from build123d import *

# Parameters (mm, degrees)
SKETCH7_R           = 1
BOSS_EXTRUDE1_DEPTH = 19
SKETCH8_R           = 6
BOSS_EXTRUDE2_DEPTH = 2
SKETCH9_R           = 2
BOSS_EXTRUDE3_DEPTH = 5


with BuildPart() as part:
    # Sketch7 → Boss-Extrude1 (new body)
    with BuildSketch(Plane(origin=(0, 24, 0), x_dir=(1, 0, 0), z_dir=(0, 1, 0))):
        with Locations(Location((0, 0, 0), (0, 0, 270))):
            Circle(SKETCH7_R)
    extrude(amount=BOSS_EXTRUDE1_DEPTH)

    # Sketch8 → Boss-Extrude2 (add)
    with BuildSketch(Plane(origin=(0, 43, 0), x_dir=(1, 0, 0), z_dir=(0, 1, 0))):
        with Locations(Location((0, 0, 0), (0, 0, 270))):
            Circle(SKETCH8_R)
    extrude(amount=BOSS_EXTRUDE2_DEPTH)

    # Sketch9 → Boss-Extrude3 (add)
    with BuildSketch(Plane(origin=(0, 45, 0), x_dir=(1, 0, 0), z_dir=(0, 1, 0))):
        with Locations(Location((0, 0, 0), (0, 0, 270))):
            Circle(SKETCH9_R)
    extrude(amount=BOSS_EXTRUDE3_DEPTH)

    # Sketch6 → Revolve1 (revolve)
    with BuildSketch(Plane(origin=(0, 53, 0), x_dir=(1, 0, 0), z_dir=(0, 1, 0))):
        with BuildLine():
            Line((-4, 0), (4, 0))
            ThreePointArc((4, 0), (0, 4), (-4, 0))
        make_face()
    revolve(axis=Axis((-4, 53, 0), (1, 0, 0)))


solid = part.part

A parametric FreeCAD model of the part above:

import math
import FreeCAD as App
import Part
import Sketcher
Q = App.Units.Quantity

doc = App.newDocument("Part")
body = doc.addObject("PartDesign::Body", "Body")

# Sketch on XZ plane
sketch1 = body.newObject("Sketcher::SketchObject", "Sketch")
sketch1.AttachmentSupport = (doc.getObject("XZ_Plane"), [""])
sketch1.MapMode = "FlatFace"
sketch1.AttachmentOffset = App.Placement(App.Vector(0, 0, -24), App.Rotation())
sketch1.addGeometry(Part.Circle(App.Vector(0, 0, 0), App.Vector(0, 0, 1), 1), False)
sketch1.addConstraint(Sketcher.Constraint("Coincident", 0, 3, -1, 1))
sketch1.addConstraint(Sketcher.Constraint("Diameter", 0, Q("2 mm")))
pad1 = body.newObject("PartDesign::Pad", "Pad")
pad1.Profile = sketch1
pad1.Length = 19
pad1.Reversed = True

# Sketch on XZ plane
sketch2 = body.newObject("Sketcher::SketchObject", "Sketch001")
sketch2.AttachmentSupport = (doc.getObject("XZ_Plane"), [""])
sketch2.MapMode = "FlatFace"
sketch2.AttachmentOffset = App.Placement(App.Vector(0, 0, -43), App.Rotation())
sketch2.addGeometry(Part.Circle(App.Vector(0, 0, 0), App.Vector(0, 0, 1), 6), False)
sketch2.addConstraint(Sketcher.Constraint("Coincident", 0, 3, -1, 1))
sketch2.addConstraint(Sketcher.Constraint("Diameter", 0, Q("12 mm")))
pad2 = body.newObject("PartDesign::Pad", "Pad001")
pad2.Profile = sketch2
pad2.Length = 2
pad2.Reversed = True

# Sketch on XZ plane
sketch3 = body.newObject("Sketcher::SketchObject", "Sketch002")
sketch3.AttachmentSupport = (doc.getObject("XZ_Plane"), [""])
sketch3.MapMode = "FlatFace"
sketch3.AttachmentOffset = App.Placement(App.Vector(0, 0, -45), App.Rotation())
sketch3.addGeometry(Part.Circle(App.Vector(0, 0, 0), App.Vector(0, 0, 1), 2), False)
sketch3.addConstraint(Sketcher.Constraint("Coincident", 0, 3, -1, 1))
sketch3.addConstraint(Sketcher.Constraint("Diameter", 0, Q("4 mm")))
pad3 = body.newObject("PartDesign::Pad", "Pad002")
pad3.Profile = sketch3
pad3.Length = 5
pad3.Reversed = True

# Sketch on XZ plane
sketch4 = body.newObject("Sketcher::SketchObject", "Sketch003")
sketch4.AttachmentSupport = (doc.getObject("XZ_Plane"), [""])
sketch4.MapMode = "FlatFace"
sketch4.AttachmentOffset = App.Placement(App.Vector(0, 0, -53), App.Rotation())
sketch4.addGeometry(Part.LineSegment(App.Vector(-4, 0, 0), App.Vector(4, 0, 0)), False)
sketch4.addGeometry(Part.ArcOfCircle(Part.Circle(App.Vector(0, 0, 0), App.Vector(0, 0, 1), 4), math.radians(180), math.radians(360)), False)
sketch4.addConstraint(Sketcher.Constraint("Coincident", 0, 1, 1, 1))
sketch4.addConstraint(Sketcher.Constraint("Coincident", 1, 2, 0, 2))
sketch4.addConstraint(Sketcher.Constraint("Horizontal", 0))
sketch4.addConstraint(Sketcher.Constraint("Coincident", 1, 3, -1, 1))
sketch4.addConstraint(Sketcher.Constraint("PointOnObject", 0, 1, -1))
sketch4.addConstraint(Sketcher.Constraint("Radius", 1, Q("4 mm")))
revolution = body.newObject("PartDesign::Revolution", "Revolution")
revolution.Profile = sketch4
revolution.ReferenceAxis = (sketch4, ["H_Axis"])
revolution.Angle = 360

doc.recompute()
